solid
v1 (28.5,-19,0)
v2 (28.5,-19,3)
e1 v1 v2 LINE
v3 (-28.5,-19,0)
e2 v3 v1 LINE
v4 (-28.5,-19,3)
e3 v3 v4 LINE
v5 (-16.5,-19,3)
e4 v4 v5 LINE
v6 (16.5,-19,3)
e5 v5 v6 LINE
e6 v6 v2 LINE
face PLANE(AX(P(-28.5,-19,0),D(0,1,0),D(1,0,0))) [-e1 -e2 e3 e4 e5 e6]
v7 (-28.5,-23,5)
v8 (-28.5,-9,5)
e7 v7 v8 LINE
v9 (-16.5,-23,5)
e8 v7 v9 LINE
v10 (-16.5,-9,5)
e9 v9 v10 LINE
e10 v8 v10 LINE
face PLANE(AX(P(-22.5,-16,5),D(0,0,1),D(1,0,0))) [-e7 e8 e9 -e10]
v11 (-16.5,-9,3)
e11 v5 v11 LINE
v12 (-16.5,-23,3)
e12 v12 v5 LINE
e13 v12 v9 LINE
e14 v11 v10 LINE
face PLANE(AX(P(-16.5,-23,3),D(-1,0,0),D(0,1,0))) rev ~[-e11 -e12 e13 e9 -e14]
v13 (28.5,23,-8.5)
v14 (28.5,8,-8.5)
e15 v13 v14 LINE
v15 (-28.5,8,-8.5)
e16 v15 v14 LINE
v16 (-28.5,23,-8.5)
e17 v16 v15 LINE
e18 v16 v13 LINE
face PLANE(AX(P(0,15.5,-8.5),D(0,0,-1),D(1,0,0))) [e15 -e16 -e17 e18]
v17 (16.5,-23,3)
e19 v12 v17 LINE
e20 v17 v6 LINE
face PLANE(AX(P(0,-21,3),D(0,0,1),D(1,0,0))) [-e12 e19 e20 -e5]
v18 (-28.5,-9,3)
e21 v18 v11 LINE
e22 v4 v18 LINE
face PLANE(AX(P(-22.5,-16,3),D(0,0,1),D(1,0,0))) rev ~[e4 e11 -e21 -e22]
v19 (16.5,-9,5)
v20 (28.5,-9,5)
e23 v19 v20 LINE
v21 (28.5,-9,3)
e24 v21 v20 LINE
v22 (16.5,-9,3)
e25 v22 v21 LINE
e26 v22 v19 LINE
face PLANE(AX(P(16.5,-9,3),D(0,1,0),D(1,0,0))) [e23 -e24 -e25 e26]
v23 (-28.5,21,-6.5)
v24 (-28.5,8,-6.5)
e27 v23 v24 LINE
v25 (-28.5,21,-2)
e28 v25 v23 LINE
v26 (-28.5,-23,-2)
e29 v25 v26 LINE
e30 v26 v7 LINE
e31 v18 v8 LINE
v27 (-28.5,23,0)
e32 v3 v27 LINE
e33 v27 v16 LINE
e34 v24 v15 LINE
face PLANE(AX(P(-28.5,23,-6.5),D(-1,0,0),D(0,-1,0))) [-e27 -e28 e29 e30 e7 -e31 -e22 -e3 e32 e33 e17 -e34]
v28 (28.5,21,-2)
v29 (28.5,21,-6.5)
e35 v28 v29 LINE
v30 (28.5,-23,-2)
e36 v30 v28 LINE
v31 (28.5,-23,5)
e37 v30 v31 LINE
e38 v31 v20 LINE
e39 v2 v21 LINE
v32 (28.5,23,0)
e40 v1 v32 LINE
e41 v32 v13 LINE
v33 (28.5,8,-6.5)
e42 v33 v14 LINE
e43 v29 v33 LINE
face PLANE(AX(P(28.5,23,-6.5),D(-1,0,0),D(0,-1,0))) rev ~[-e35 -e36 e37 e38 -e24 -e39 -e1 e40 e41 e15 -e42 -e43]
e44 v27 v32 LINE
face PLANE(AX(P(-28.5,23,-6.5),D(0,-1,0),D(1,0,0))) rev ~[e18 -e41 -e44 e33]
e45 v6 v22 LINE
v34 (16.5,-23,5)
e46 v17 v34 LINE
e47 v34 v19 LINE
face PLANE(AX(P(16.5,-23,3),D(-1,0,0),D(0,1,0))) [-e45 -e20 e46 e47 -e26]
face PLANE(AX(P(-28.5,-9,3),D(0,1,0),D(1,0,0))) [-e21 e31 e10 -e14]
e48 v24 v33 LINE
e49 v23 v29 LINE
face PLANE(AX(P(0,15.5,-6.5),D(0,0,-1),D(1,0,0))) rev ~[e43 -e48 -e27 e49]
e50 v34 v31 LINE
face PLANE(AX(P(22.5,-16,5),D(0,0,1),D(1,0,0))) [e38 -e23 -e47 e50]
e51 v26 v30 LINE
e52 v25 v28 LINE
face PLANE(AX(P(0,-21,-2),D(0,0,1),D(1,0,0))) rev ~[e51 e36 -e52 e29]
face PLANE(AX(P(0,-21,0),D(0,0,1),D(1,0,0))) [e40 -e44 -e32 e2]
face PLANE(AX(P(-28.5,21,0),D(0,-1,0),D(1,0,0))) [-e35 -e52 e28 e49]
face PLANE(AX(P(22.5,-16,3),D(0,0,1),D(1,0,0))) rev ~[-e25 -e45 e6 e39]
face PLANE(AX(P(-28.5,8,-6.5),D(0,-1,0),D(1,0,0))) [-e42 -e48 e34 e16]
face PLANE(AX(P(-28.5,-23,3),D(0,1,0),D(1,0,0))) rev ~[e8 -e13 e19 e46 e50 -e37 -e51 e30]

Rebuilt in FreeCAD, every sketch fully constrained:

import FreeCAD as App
import Part
import Sketcher
from FreeCAD import Vector

doc = App.newDocument("Part")
params = doc.addObject("Spreadsheet::Sheet", "Params")
for row, (alias, value) in enumerate([
    ("sketch1_width", "57 mm"),
    ("sketch1_height", "46 mm"),
    ("pad1_length", "2 mm"),
    ("sketch2_width", "57 mm"),
    ("sketch2_height", "4 mm"),
    ("pad2_length", "3 mm"),
    ("sketch3_width", "12 mm"),
    ("sketch3_height", "14 mm"),
    ("pad3_length", "2 mm"),
    ("sketch4_width", "57 mm"),
    ("sketch4_height", "2 mm"),
    ("pad4_length", "6.5 mm"),
    ("sketch5_width", "57 mm"),
    ("sketch5_height", "15 mm"),
    ("pad5_length", "2 mm"),
], start=1):
    params.set(f"A{row}", alias)
    params.set(f"B{row}", "=" + value)
    params.setAlias(f"B{row}", alias)

body = doc.addObject("PartDesign::Body", "Body")

# Sketch on XY plane
sketch1 = body.newObject("Sketcher::SketchObject", "Sketch")
sketch1.AttachmentSupport = (doc.getObject("XY_Plane"), [""])
sketch1.MapMode = "FlatFace"
sketch1.addGeometry([
    Part.LineSegment(Vector(-28, -23, 0), Vector(28, -23, 0)),
    Part.LineSegment(Vector(28, -23, 0), Vector(28, 23, 0)),
    Part.LineSegment(Vector(28, 23, 0), Vector(-28, 23, 0)),
    Part.LineSegment(Vector(-28, 23, 0), Vector(-28, -23, 0)),
], False)
sketch1.addConstraint([
    Sketcher.Constraint("Coincident", 0, 2, 1, 1),
    Sketcher.Constraint("Coincident", 1, 2, 2, 1),
    Sketcher.Constraint("Coincident", 2, 2, 3, 1),
    Sketcher.Constraint("Coincident", 3, 2, 0, 1),
    Sketcher.Constraint("Horizontal", 0),
    Sketcher.Constraint("Vertical", 1),
    Sketcher.Constraint("Horizontal", 2),
    Sketcher.Constraint("Vertical", 3),
    Sketcher.Constraint("Symmetric", 0, 2, 2, 2, -1, 1),
    Sketcher.Constraint("DistanceX", 0, 1, 0, 2, 57.0),
    Sketcher.Constraint("DistanceY", 1, 1, 1, 2, 46.0),
])
sketch1.setExpression("Constraints[9]", "Params.sketch1_width")
sketch1.setExpression("Constraints[10]", "Params.sketch1_height")
pad1 = body.newObject("PartDesign::Pad", "Pad")
pad1.Profile = sketch1
pad1.setExpression("Length", "Params.pad1_length")
pad1.Reversed = True

# Sketch on XY plane
sketch2 = body.newObject("Sketcher::SketchObject", "Sketch001")
sketch2.AttachmentSupport = (doc.getObject("XY_Plane"), [""])
sketch2.MapMode = "FlatFace"
sketch2.addGeometry([
    Part.LineSegment(Vector(-28.5, -19, 0), Vector(-28.5, -23, 0)),
    Part.LineSegment(Vector(-28.5, -23, 0), Vector(28.5, -23, 0)),
    Part.LineSegment(Vector(28.5, -23, 0), Vector(28.5, -19, 0)),
    Part.LineSegment(Vector(28.5, -19, 0), Vector(-28.5, -19, 0)),
], False)
sketch2.addConstraint([
    Sketcher.Constraint("Coincident", 0, 2, 1, 1),
    Sketcher.Constraint("Coincident", 1, 2, 2, 1),
    Sketcher.Constraint("Coincident", 2, 2, 3, 1),
    Sketcher.Constraint("Coincident", 3, 2, 0, 1),
    Sketcher.Constraint("Vertical", 0),
    Sketcher.Constraint("Horizontal", 1),
    Sketcher.Constraint("Vertical", 2),
    Sketcher.Constraint("Horizontal", 3),
    Sketcher.Constraint("DistanceX", 1, 1, 1, 2, 57.0),
    Sketcher.Constraint("DistanceY", 0, 2, 0, 1, 4.0),
    Sketcher.Constraint("DistanceY", 0, 2, -1, 1, 23.0),
    Sketcher.Constraint("DistanceX", 0, 2, -1, 1, 28.5),
])
sketch2.setExpression("Constraints[8]", "Params.sketch2_width")
sketch2.setExpression("Constraints[9]", "Params.sketch2_height")
pad2 = body.newObject("PartDesign::Pad", "Pad001")
pad2.Profile = sketch2
pad2.setExpression("Length", "Params.pad2_length")

# Sketch on XY plane
sketch3 = body.newObject("Sketcher::SketchObject", "Sketch002")
sketch3.AttachmentSupport = (doc.getObject("XY_Plane"), [""])
sketch3.MapMode = "FlatFace"
sketch3.AttachmentOffset = App.Placement(Vector(0, 0, 3), App.Rotation())
sketch3.addGeometry([
    Part.LineSegment(Vector(-28, -9, 0), Vector(-28, -23, 0)),  # 0
    Part.LineSegment(Vector(-28, -23, 0), Vector(-16, -23, 0)),  # 1
    Part.LineSegment(Vector(-16, -23, 0), Vector(-16, -9, 0)),  # 2
    Part.LineSegment(Vector(-16, -9, 0), Vector(-28, -9, 0)),  # 3
    Part.LineSegment(Vector(16, -9, 0), Vector(16, -23, 0)),  # 4
    Part.LineSegment(Vector(16, -23, 0), Vector(28, -23, 0)),  # 5
    Part.LineSegment(Vector(28, -23, 0), Vector(28, -9, 0)),  # 6
    Part.LineSegment(Vector(28, -9, 0), Vector(16, -9, 0)),  # 7
], False)
sketch3.addConstraint([
    Sketcher.Constraint("Coincident", 0, 2, 1, 1),
    Sketcher.Constraint("Coincident", 1, 2, 2, 1),
    Sketcher.Constraint("Coincident", 2, 2, 3, 1),
    Sketcher.Constraint("Coincident", 3, 2, 0, 1),
    Sketcher.Constraint("Coincident", 4, 2, 5, 1),
    Sketcher.Constraint("Coincident", 5, 2, 6, 1),
    Sketcher.Constraint("Coincident", 6, 2, 7, 1),
    Sketcher.Constraint("Coincident", 7, 2, 4, 1),
    Sketcher.Constraint("Vertical", 0),
    Sketcher.Constraint("Horizontal", 1),
    Sketcher.Constraint("Vertical", 2),
    Sketcher.Constraint("Horizontal", 3),
    Sketcher.Constraint("Vertical", 4),
    Sketcher.Constraint("Horizontal", 5),
    Sketcher.Constraint("Vertical", 6),
    Sketcher.Constraint("Horizontal", 7),
    Sketcher.Constraint("Symmetric", 1, 2, 4, 2, -2),
    Sketcher.Constraint("Symmetric", 3, 2, 6, 2, -2),
    Sketcher.Constraint("DistanceX", 1, 1, 1, 2, 12.0),
    Sketcher.Constraint("DistanceY", 0, 2, 0, 1, 14.0),
    Sketcher.Constraint("DistanceY", 0, 2, -1, 1, 23.0),
    Sketcher.Constraint("DistanceX", 1, 2, 4, 2, 33.0),
])
sketch3.setExpression("Constraints[18]", "Params.sketch3_width")
sketch3.setExpression("Constraints[19]", "Params.sketch3_height")
pad3 = body.newObject("PartDesign::Pad", "Pad002")
pad3.Profile = sketch3
pad3.setExpression("Length", "Params.pad3_length")

# Sketch on XY plane
sketch4 = body.newObject("Sketcher::SketchObject", "Sketch003")
sketch4.AttachmentSupport = (doc.getObject("XY_Plane"), [""])
sketch4.MapMode = "FlatFace"
sketch4.addGeometry([
    Part.LineSegment(Vector(-28.5, 23, 0), Vector(-28.5, 21, 0)),
    Part.LineSegment(Vector(-28.5, 21, 0), Vector(28.5, 21, 0)),
    Part.LineSegment(Vector(28.5, 21, 0), Vector(28.5, 23, 0)),
    Part.LineSegment(Vector(28.5, 23, 0), Vector(-28.5, 23, 0)),
], False)
sketch4.addConstraint([
    Sketcher.Constraint("Coincident", 0, 2, 1, 1),
    Sketcher.Constraint("Coincident", 1, 2, 2, 1),
    Sketcher.Constraint("Coincident", 2, 2, 3, 1),
    Sketcher.Constraint("Coincident", 3, 2, 0, 1),
    Sketcher.Constraint("Vertical", 0),
    Sketcher.Constraint("Horizontal", 1),
    Sketcher.Constraint("Vertical", 2),
    Sketcher.Constraint("Horizontal", 3),
    Sketcher.Constraint("DistanceX", 1, 1, 1, 2, 57.0),
    Sketcher.Constraint("DistanceY", 0, 2, 0, 1, 2.0),
    Sketcher.Constraint("DistanceY", -1, 1, 0, 2, 21.0),
    Sketcher.Constraint("DistanceX", 0, 2, -1, 1, 28.5),
])
sketch4.setExpression("Constraints[8]", "Params.sketch4_width")
sketch4.setExpression("Constraints[9]", "Params.sketch4_height")
pad4 = body.newObject("PartDesign::Pad", "Pad003")
pad4.Profile = sketch4
pad4.setExpression("Length", "Params.pad4_length")
pad4.Reversed = True

# Sketch on XY plane
sketch5 = body.newObject("Sketcher::SketchObject", "Sketch004")
sketch5.AttachmentSupport = (doc.getObject("XY_Plane"), [""])
sketch5.MapMode = "FlatFace"
sketch5.AttachmentOffset = App.Placement(Vector(0, 0, -6.5), App.Rotation())
sketch5.addGeometry([
    Part.LineSegment(Vector(-28, 8, 0), Vector(-28, 23, 0)),
    Part.LineSegment(Vector(-28, 23, 0), Vector(28, 23, 0)),
    Part.LineSegment(Vector(28, 23, 0), Vector(28, 8, 0)),
    Part.LineSegment(Vector(28, 8, 0), Vector(-28, 8, 0)),
], False)
sketch5.addConstraint([
    Sketcher.Constraint("Coincident", 0, 2, 1, 1),
    Sketcher.Constraint("Coincident", 1, 2, 2, 1),
    Sketcher.Constraint("Coincident", 2, 2, 3, 1),
    Sketcher.Constraint("Coincident", 3, 2, 0, 1),
    Sketcher.Constraint("Vertical", 0),
    Sketcher.Constraint("Horizontal", 1),
    Sketcher.Constraint("Vertical", 2),
    Sketcher.Constraint("Horizontal", 3),
    Sketcher.Constraint("DistanceX", 1, 1, 1, 2, 57.0),
    Sketcher.Constraint("DistanceY", 0, 1, 0, 2, 15.0),
    Sketcher.Constraint("DistanceY", -1, 1, 0, 2, 23.0),
    Sketcher.Constraint("DistanceX", 0, 2, -1, 1, 28.5),
])
sketch5.setExpression("Constraints[8]", "Params.sketch5_width")
sketch5.setExpression("Constraints[9]", "Params.sketch5_height")
pad5 = body.newObject("PartDesign::Pad", "Pad004")
pad5.Profile = sketch5
pad5.setExpression("Length", "Params.pad5_length")
pad5.Reversed = True

doc.recompute()
